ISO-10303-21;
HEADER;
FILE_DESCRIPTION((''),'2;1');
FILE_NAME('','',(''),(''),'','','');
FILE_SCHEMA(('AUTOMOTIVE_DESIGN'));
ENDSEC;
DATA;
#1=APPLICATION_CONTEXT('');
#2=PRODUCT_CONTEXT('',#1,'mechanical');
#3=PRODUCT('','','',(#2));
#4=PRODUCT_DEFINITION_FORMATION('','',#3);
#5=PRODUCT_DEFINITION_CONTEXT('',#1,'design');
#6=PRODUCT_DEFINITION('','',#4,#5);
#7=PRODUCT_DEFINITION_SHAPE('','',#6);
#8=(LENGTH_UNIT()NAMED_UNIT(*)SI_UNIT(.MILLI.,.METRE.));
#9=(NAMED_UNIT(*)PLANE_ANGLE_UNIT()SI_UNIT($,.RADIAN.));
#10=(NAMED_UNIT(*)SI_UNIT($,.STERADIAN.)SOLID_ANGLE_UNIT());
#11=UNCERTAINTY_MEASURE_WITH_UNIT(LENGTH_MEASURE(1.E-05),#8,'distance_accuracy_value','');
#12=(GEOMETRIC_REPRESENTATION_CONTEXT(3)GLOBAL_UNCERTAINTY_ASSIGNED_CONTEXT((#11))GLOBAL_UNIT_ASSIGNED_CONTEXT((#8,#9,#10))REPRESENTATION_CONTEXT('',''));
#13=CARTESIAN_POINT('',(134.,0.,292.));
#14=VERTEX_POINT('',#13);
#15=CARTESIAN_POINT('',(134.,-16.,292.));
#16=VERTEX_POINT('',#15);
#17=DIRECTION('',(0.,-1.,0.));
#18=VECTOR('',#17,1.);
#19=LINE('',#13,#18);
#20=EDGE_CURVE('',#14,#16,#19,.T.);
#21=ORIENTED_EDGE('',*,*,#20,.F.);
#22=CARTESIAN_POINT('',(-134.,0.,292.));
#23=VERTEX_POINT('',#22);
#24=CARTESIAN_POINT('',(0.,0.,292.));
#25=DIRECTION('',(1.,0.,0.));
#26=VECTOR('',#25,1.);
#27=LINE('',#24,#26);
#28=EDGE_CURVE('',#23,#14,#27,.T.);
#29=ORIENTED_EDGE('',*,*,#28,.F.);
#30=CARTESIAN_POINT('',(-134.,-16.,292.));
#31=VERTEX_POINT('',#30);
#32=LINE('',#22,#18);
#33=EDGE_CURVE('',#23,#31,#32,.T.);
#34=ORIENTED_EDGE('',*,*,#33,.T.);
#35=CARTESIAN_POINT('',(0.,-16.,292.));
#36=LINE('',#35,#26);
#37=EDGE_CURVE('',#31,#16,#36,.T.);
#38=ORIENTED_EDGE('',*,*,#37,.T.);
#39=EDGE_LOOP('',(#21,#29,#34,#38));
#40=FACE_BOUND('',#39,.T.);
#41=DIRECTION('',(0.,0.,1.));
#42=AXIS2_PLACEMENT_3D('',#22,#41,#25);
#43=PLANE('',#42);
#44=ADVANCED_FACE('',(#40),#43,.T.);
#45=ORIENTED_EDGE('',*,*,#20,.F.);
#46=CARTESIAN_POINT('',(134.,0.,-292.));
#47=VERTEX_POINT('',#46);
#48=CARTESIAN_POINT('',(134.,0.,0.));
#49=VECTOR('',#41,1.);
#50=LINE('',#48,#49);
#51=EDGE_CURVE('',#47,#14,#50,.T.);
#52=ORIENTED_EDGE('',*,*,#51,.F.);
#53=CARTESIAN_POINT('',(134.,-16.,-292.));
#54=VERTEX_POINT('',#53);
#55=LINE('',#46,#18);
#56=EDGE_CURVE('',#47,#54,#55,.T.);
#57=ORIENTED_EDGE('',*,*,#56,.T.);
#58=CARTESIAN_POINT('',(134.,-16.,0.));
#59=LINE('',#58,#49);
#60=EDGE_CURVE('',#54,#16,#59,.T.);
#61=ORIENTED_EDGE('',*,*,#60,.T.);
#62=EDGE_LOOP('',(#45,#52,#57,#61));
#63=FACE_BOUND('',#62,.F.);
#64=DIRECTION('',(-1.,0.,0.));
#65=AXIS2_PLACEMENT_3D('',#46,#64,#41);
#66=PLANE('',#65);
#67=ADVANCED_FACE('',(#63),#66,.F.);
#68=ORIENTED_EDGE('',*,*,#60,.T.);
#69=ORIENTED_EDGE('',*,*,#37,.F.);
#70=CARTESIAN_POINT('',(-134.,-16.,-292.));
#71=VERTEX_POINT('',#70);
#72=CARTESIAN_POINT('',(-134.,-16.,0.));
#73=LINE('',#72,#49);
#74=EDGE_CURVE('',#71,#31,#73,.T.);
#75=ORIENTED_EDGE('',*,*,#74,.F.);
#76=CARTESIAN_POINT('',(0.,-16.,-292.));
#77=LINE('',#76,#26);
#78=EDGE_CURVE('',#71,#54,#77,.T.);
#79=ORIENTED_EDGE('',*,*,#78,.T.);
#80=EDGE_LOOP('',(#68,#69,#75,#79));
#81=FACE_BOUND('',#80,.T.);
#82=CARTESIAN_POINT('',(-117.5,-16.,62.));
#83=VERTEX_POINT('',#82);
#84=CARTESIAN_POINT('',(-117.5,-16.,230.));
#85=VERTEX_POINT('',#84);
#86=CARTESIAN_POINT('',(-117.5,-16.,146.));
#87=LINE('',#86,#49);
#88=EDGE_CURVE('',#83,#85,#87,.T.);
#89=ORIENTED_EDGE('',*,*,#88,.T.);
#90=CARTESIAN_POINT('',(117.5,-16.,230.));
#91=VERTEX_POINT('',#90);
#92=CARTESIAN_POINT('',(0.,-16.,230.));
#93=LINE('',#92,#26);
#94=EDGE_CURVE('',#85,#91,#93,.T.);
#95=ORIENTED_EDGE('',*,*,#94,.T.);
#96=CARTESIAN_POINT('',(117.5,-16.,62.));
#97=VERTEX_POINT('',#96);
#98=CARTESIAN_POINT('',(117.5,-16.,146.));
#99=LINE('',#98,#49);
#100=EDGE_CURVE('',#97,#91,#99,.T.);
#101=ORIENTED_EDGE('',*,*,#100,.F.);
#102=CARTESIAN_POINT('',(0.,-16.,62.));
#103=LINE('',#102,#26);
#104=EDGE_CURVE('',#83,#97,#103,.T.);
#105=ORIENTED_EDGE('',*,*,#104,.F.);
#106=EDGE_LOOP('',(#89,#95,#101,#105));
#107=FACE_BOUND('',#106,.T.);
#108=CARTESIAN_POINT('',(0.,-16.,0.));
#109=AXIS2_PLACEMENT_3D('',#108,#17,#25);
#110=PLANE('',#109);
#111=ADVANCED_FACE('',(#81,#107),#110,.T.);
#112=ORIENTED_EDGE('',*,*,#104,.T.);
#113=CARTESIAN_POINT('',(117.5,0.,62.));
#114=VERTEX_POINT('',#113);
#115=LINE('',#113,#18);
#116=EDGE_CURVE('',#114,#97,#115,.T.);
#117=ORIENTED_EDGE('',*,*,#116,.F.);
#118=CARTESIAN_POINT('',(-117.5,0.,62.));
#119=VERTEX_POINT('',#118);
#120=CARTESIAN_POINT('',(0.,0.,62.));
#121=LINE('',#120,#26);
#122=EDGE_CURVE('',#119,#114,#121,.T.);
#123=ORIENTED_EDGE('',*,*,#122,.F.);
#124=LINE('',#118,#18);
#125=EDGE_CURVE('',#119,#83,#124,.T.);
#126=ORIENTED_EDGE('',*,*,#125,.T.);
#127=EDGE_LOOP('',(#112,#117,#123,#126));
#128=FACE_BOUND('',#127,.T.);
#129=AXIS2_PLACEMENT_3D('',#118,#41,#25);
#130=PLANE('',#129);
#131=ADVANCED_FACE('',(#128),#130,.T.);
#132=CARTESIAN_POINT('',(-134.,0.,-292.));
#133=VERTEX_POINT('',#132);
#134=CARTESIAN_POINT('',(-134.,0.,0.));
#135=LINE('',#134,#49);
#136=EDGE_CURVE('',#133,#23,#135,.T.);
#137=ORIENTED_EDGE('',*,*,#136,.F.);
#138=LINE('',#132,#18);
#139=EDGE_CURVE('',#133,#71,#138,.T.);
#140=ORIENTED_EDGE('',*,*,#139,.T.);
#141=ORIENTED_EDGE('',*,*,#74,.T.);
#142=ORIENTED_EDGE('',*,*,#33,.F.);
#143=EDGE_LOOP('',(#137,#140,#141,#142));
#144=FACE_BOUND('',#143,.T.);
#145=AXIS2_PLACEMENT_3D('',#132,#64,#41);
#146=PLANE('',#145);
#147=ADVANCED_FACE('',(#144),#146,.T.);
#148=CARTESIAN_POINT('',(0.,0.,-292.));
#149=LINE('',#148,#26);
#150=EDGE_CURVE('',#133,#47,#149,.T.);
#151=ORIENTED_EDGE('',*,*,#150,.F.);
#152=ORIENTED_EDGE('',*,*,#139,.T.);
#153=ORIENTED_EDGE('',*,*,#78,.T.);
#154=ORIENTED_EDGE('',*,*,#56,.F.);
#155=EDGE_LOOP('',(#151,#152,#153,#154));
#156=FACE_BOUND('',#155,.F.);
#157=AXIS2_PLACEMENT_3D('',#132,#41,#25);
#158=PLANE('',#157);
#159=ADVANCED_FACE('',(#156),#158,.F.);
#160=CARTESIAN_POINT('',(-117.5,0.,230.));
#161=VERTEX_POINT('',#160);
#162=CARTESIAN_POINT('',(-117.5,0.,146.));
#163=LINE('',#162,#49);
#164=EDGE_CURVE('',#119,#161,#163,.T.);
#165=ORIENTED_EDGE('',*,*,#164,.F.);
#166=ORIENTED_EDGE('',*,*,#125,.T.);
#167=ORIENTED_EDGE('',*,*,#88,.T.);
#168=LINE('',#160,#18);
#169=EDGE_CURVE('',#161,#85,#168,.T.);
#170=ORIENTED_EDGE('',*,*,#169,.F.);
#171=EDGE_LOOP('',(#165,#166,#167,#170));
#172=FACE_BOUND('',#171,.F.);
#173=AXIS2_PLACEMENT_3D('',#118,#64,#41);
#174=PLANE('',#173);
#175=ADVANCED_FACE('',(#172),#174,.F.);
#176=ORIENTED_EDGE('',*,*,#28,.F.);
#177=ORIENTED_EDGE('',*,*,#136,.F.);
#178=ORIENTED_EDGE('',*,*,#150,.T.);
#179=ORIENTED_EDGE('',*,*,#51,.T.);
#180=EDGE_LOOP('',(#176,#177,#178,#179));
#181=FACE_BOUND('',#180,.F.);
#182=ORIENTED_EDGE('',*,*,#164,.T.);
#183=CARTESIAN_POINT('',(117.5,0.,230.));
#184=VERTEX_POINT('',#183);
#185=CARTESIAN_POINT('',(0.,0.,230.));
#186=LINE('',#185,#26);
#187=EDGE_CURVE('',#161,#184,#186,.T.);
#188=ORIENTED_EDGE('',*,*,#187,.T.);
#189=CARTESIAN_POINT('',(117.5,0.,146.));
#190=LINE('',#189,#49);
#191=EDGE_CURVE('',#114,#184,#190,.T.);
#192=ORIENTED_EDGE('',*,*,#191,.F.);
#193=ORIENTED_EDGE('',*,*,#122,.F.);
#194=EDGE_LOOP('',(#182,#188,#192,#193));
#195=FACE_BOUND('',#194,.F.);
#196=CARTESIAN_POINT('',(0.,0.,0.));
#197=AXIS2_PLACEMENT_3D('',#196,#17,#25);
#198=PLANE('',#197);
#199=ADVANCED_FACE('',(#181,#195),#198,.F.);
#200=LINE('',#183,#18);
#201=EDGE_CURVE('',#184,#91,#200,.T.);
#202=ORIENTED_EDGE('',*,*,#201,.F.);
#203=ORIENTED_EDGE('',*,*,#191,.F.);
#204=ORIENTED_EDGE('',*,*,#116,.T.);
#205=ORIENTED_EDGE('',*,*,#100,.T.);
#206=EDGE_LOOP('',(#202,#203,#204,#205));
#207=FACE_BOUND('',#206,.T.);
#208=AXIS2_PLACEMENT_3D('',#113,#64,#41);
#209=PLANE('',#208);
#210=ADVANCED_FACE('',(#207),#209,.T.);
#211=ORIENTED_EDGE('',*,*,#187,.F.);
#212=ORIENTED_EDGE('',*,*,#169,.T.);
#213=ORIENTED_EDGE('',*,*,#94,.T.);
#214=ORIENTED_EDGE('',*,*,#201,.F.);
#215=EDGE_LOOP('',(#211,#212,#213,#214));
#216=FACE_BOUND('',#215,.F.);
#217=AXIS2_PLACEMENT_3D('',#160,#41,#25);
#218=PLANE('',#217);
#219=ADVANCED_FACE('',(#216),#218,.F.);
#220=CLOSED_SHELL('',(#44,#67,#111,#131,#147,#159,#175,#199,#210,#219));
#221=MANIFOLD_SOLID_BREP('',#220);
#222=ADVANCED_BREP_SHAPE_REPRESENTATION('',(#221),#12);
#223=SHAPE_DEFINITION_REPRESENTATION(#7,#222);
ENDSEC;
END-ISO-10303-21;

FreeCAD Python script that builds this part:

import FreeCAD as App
import Part
import Sketcher


def add_polygon(sketch, points):
    """Adds a closed chain of lines whose ends are joined by coincident constraints."""
    first, n = sketch.GeometryCount, len(points)
    for a, b in zip(points, points[1:] + points[:1]):
        sketch.addGeometry(Part.LineSegment(App.Vector(*a, 0), App.Vector(*b, 0)), False)
    for i in range(n):
        sketch.addConstraint(Sketcher.Constraint("Coincident", first + i, 2, first + (i + 1) % n, 1))

doc = App.newDocument("Part")
body = doc.addObject("PartDesign::Body", "Body")

# Sketch on XZ plane
sketch1 = doc.addObject("Sketcher::SketchObject", "Sketch")
body.addObject(sketch1)
sketch1.AttachmentSupport = (doc.XZ_Plane, [""])
sketch1.MapMode = "FlatFace"
add_polygon(sketch1, [(-134, 292), (-134, -292), (134, -292), (134, 292)])  # lines 0-3
add_polygon(sketch1, [(118, 62), (-118, 62), (-118, 230), (118, 230)])  # lines 4-7
sketch1.addConstraint([
    Sketcher.Constraint("Vertical", 0),
    Sketcher.Constraint("Horizontal", 1),
    Sketcher.Constraint("Vertical", 2),
    Sketcher.Constraint("Horizontal", 3),
    Sketcher.Constraint("Horizontal", 4),
    Sketcher.Constraint("Vertical", 5),
    Sketcher.Constraint("Horizontal", 6),
    Sketcher.Constraint("Vertical", 7),
    Sketcher.Constraint("Symmetric", 0, 2, 2, 2, -1, 1),
    Sketcher.Constraint("DistanceX", 1, 1, 1, 2, 268.0),
    Sketcher.Constraint("DistanceX", 4, 2, 4, 1, 235.0),
    Sketcher.Constraint("DistanceY", 0, 2, 0, 1, 584.0),
    Sketcher.Constraint("DistanceY", 5, 1, 5, 2, 168.0),
    Sketcher.Constraint("DistanceY", -1, 1, 4, 2, 62.0),
    Sketcher.Constraint("DistanceX", 4, 2, -1, 1, 117.5),
])
pad1 = doc.addObject("PartDesign::Pad", "Pad")
body.addObject(pad1)
pad1.Profile = sketch1
pad1.Length = 16

doc.recompute()
